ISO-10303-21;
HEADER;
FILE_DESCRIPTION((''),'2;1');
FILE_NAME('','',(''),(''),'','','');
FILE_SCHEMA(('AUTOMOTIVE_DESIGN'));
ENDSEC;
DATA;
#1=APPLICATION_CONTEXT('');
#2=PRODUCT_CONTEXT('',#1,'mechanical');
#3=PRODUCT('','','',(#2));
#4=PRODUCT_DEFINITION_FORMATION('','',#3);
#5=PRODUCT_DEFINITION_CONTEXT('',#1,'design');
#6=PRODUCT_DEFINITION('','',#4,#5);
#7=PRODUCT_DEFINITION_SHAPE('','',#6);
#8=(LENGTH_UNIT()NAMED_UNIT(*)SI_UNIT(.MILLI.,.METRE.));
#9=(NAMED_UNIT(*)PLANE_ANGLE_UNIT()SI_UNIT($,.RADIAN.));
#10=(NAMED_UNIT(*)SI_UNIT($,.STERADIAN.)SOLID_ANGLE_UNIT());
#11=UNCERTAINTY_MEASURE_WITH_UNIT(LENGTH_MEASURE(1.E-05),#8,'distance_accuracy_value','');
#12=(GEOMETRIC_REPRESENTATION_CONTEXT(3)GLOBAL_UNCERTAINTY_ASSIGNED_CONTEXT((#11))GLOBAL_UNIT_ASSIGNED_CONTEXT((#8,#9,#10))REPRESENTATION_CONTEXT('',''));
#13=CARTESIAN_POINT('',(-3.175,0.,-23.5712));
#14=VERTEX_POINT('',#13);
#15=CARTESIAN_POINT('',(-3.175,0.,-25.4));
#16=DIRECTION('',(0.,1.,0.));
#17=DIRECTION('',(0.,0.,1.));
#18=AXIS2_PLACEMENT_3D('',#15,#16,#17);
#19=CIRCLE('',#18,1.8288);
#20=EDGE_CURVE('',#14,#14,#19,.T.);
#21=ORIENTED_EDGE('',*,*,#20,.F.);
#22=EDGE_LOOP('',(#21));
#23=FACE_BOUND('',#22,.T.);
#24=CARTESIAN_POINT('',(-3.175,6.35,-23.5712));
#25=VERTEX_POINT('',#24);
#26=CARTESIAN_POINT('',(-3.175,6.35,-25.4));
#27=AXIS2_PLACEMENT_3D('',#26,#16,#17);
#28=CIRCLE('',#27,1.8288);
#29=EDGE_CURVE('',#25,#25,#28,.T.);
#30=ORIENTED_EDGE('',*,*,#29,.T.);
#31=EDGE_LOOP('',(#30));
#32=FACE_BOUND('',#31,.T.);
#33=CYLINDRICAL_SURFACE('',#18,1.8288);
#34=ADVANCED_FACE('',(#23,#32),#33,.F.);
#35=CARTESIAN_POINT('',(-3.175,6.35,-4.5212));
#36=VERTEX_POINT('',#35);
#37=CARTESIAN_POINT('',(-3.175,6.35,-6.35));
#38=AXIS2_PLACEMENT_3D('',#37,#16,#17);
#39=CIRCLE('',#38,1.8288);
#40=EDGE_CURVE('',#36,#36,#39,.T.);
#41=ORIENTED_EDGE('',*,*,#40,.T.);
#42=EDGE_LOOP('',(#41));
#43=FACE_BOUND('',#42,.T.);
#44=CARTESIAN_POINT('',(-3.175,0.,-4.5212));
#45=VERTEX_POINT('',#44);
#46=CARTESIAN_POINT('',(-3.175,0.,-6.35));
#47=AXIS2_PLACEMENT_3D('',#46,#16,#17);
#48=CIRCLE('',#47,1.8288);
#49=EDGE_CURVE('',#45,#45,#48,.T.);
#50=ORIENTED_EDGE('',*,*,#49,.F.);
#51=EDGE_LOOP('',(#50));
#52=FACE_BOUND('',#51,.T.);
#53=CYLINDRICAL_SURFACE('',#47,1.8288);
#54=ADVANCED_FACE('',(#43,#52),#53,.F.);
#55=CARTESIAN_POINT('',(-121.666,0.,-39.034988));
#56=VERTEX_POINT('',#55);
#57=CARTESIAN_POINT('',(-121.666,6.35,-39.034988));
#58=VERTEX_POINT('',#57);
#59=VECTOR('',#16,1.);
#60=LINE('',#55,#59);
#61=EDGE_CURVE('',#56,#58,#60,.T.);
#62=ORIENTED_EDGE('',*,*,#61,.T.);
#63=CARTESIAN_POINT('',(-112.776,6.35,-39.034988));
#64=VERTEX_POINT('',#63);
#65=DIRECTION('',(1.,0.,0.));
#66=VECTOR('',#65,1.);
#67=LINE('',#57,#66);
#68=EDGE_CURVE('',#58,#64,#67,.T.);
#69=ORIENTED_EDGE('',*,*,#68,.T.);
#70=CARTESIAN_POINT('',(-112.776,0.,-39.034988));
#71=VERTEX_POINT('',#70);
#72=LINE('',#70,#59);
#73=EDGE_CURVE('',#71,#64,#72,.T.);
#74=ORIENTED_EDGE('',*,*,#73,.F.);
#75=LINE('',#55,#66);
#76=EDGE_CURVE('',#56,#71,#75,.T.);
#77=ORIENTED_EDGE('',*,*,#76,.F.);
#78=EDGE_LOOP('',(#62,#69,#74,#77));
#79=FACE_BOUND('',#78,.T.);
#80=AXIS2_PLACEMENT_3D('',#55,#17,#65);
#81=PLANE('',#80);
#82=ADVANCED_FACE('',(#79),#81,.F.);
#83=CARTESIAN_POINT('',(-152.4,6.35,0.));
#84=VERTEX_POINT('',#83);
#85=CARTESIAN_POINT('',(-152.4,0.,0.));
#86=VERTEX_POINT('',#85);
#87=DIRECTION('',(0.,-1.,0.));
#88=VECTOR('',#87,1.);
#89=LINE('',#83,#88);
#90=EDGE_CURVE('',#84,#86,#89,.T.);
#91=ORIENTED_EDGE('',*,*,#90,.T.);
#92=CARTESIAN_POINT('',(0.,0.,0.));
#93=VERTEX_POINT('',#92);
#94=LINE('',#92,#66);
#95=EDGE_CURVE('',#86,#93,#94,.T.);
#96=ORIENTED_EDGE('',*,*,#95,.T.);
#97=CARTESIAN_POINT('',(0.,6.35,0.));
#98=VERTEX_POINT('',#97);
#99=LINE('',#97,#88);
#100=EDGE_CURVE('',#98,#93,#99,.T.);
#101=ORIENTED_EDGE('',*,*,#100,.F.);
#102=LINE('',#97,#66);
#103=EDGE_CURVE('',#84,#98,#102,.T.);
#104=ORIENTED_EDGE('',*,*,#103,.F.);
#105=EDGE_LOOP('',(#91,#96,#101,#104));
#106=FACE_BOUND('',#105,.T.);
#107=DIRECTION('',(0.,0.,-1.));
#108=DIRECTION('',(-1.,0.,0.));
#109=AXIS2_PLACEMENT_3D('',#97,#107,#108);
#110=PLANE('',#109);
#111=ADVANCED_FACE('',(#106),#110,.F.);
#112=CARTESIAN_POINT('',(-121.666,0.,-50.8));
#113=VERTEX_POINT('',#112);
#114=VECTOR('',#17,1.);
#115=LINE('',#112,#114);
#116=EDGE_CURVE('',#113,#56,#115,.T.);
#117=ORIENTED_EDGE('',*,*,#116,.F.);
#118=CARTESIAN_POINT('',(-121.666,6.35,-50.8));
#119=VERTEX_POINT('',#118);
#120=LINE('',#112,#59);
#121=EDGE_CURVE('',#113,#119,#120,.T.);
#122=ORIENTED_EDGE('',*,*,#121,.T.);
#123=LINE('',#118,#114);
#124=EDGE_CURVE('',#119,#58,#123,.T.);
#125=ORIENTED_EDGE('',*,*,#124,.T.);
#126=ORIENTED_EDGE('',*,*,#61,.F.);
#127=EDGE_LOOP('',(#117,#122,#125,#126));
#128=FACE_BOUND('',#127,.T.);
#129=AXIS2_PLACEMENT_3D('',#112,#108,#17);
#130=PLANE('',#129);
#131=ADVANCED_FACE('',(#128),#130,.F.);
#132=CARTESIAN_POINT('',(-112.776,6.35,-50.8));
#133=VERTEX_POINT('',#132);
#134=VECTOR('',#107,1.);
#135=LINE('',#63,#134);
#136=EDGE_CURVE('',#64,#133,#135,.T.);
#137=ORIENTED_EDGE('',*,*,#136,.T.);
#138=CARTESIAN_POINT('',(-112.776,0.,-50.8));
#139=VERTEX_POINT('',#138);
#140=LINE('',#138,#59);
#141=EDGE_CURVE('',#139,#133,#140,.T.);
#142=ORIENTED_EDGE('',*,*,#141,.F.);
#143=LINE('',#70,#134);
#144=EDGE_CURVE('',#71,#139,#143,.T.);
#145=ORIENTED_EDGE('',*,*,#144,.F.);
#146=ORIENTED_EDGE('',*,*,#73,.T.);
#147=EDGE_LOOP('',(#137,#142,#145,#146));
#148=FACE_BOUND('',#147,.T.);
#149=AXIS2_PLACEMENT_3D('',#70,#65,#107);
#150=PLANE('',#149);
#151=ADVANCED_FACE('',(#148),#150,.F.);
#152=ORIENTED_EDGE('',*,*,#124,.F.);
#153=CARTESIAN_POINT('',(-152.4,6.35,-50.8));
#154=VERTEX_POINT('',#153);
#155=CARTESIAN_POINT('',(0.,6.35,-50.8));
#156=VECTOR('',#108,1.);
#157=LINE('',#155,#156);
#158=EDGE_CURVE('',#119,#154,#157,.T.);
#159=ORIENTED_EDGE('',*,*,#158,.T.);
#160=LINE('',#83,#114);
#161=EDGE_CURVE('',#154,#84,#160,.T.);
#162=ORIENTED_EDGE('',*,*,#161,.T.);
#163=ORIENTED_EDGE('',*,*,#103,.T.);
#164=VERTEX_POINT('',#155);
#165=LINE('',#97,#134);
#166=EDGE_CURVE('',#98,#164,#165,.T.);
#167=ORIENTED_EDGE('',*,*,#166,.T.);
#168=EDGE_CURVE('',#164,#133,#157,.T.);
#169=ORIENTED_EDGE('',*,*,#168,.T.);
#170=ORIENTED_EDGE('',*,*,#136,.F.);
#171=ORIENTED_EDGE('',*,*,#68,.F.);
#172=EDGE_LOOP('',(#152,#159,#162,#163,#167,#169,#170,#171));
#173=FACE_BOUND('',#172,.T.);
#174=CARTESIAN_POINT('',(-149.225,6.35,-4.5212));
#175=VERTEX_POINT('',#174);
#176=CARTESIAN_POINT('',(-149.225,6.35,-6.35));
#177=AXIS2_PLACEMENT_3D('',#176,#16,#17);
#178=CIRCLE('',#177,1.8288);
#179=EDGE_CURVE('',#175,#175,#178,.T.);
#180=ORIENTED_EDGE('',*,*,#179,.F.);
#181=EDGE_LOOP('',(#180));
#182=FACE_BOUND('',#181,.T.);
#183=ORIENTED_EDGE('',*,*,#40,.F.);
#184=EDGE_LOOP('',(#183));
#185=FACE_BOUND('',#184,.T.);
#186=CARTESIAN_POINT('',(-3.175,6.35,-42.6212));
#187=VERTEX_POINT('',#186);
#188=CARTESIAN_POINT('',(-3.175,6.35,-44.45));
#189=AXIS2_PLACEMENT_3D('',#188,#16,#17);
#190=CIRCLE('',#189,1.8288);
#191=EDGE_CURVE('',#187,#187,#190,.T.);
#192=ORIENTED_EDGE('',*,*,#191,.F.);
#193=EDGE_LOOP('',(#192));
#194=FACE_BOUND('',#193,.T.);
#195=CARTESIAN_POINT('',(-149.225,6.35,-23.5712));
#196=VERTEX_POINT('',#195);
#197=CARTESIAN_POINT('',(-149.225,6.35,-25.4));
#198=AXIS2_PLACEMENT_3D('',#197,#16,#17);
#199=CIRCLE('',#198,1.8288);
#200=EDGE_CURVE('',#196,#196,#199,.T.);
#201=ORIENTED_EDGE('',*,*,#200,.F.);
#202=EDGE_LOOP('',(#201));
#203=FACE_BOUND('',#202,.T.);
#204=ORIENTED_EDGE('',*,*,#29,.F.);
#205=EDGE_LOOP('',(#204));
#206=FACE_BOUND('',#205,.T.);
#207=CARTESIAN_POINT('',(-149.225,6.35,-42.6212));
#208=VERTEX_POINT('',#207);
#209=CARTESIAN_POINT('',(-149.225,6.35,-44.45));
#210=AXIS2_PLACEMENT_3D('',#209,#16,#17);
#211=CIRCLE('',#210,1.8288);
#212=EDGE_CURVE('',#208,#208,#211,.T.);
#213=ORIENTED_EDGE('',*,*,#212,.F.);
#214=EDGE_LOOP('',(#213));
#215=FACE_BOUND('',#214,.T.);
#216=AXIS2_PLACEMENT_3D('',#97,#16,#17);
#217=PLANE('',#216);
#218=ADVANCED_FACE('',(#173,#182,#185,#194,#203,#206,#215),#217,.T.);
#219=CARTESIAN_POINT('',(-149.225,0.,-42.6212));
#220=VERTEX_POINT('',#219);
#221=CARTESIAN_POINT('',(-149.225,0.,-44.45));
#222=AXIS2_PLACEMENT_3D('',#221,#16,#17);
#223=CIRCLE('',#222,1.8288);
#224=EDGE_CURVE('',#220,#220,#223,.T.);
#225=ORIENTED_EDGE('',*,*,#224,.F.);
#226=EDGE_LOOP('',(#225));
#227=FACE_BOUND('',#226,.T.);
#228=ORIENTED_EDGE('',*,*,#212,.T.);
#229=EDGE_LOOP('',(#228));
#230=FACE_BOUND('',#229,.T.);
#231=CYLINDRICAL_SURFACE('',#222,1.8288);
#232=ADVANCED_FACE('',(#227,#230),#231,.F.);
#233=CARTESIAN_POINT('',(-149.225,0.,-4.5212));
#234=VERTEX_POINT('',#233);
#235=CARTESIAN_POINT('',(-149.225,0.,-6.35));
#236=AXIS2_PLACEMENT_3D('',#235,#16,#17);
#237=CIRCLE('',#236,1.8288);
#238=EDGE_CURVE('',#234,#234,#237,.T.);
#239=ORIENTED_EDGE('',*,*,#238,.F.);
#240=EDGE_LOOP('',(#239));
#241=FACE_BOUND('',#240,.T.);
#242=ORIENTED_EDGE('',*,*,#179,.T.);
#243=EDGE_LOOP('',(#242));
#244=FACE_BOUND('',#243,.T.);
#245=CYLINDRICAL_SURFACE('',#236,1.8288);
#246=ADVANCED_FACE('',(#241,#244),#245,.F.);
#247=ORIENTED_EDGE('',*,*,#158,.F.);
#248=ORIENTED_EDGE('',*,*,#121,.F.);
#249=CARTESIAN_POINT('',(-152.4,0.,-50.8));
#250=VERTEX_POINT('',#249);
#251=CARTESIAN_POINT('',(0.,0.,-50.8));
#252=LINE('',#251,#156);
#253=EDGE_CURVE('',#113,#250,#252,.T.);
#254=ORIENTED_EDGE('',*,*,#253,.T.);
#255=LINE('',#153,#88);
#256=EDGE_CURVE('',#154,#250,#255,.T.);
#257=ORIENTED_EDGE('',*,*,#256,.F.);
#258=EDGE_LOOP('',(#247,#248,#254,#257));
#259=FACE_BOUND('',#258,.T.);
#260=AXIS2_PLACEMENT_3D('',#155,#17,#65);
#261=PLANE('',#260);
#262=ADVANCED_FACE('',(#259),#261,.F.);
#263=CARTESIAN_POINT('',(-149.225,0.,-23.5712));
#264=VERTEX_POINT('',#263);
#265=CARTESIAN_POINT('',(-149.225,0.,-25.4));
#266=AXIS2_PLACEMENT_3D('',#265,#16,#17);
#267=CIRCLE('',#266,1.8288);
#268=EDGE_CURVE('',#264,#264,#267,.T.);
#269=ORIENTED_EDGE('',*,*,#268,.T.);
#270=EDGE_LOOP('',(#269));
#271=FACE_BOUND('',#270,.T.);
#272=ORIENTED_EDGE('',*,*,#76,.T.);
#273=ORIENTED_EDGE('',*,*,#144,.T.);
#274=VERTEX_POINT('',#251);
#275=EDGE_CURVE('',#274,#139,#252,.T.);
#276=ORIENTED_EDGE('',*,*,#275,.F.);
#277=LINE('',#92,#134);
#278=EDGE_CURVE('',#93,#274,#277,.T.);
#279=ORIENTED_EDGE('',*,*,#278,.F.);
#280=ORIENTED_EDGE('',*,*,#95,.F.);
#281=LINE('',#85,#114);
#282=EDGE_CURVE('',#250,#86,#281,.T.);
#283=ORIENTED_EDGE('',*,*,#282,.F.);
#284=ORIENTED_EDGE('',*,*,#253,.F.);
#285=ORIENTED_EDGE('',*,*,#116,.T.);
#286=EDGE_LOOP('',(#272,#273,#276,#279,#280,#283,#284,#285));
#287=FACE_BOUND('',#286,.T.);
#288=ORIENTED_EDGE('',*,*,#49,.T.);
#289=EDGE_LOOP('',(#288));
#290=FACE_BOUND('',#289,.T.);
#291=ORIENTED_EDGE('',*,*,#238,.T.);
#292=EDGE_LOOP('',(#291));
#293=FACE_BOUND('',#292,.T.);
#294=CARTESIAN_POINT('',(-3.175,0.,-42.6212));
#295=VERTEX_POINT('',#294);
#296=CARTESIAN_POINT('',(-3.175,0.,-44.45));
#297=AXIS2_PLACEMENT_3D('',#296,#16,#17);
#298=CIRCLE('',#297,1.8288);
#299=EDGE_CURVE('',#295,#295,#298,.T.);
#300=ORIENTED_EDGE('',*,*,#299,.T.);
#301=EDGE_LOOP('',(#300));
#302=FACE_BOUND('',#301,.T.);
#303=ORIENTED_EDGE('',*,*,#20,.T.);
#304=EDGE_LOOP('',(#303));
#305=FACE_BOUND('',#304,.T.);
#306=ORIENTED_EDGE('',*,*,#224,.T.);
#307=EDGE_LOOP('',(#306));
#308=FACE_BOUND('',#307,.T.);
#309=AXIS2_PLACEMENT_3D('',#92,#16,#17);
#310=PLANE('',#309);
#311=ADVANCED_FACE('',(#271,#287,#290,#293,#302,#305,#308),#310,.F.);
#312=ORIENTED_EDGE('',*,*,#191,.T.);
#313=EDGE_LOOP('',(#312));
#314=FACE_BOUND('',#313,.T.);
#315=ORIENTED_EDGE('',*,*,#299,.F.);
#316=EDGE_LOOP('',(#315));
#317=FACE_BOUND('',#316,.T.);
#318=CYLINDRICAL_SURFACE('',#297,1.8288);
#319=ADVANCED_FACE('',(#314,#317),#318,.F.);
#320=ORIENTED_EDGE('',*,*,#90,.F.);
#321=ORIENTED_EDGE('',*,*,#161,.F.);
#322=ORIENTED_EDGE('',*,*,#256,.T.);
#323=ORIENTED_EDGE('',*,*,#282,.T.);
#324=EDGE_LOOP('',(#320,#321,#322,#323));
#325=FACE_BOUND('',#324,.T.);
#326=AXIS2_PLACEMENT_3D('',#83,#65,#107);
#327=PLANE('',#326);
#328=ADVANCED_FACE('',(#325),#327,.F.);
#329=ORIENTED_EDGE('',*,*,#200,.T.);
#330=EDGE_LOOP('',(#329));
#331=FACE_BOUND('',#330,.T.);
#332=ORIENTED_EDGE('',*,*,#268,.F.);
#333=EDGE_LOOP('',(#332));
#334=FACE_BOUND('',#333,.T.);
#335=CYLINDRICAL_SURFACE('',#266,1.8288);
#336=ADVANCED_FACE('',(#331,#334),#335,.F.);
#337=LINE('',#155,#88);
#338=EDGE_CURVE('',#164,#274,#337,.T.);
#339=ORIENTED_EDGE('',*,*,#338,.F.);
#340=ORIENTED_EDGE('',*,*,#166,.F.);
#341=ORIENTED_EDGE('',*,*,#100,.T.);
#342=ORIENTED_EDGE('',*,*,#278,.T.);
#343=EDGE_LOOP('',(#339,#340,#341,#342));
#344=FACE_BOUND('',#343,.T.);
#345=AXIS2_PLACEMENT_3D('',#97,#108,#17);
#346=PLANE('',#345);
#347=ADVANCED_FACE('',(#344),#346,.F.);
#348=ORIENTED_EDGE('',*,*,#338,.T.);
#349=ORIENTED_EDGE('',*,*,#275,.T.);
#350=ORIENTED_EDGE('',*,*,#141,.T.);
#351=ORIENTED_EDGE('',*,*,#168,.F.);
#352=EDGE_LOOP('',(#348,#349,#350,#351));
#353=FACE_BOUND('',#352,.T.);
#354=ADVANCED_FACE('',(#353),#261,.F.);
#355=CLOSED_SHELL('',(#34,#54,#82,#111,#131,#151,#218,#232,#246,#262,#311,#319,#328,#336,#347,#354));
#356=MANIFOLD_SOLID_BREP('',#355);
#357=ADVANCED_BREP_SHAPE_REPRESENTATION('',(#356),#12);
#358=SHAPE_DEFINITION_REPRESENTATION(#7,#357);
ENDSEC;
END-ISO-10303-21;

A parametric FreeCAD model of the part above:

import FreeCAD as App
import Part
import Sketcher
from FreeCAD import Vector
Q = App.Units.Quantity


def add_polygon(sketch, points):
    """Adds a closed chain of lines whose ends are joined by coincident constraints."""
    first, n = sketch.GeometryCount, len(points)
    for a, b in zip(points, points[1:] + points[:1]):
        sketch.addGeometry(Part.LineSegment(App.Vector(*a, 0), App.Vector(*b, 0)), False)
    for i in range(n):
        sketch.addConstraint(Sketcher.Constraint("Coincident", first + i, 2, first + (i + 1) % n, 1))

doc = App.newDocument("Part")
body = doc.addObject("PartDesign::Body", "Body")

sketch1 = doc.addObject("Sketcher::SketchObject", "Sketch")
body.addObject(sketch1)
sketch1.AttachmentSupport = (doc.XZ_Plane, [""])
sketch1.MapMode = "FlatFace"
add_polygon(sketch1, [(-152, -51), (-152, 0), (0, 0), (0, -51)])
sketch1.addConstraint([
    Sketcher.Constraint("Vertical", 0),
    Sketcher.Constraint("Horizontal", 1),
    Sketcher.Constraint("Vertical", 2),
    Sketcher.Constraint("Horizontal", 3),
    Sketcher.Constraint("Coincident", 1, 2, -1, 1),
    Sketcher.Constraint("DistanceX", 1, 1, 1, 2, Q("6 in")),
    Sketcher.Constraint("DistanceY", 0, 1, 0, 2, Q("2 in")),
])
pad1 = doc.addObject("PartDesign::Pad", "Pad")
body.addObject(pad1)
pad1.Profile = sketch1
pad1.Length = Q("0.25 in")
pad1.Reversed = True

sketch2 = doc.addObject("Sketcher::SketchObject", "Sketch001")
body.addObject(sketch2)
sketch2.AttachmentSupport = (doc.XZ_Plane, [""])
sketch2.MapMode = "FlatFace"
sketch2.AttachmentOffset = App.Placement(Vector(0, 0, -0.25 * 25.4), App.Rotation())
sketch2.addGeometry([
    Part.Circle(Vector(-149.2, -44.5, 0), Vector(0, 0, 1), 1.8),
    Part.Circle(Vector(-149.2, -25.4, 0), Vector(0, 0, 1), 1.8),
    Part.Circle(Vector(-149.2, -6.3, 0), Vector(0, 0, 1), 1.8),
    Part.Circle(Vector(-3.2, -25.4, 0), Vector(0, 0, 1), 1.8),
    Part.Circle(Vector(-3.2, -44.5, 0), Vector(0, 0, 1), 1.8),
    Part.Circle(Vector(-3.2, -6.3, 0), Vector(0, 0, 1), 1.8),
], False)
sketch2.addConstraint([
    Sketcher.Constraint("Equal", 0, 1),
    Sketcher.Constraint("Equal", 1, 2),
    Sketcher.Constraint("Equal", 2, 3),
    Sketcher.Constraint("Equal", 3, 4),
    Sketcher.Constraint("Equal", 4, 5),
    Sketcher.Constraint("Horizontal", 1, 3, 3, 3),
    Sketcher.Constraint("Horizontal", 0, 3, 4, 3),
    Sketcher.Constraint("Horizontal", 2, 3, 5, 3),
    Sketcher.Constraint("Vertical", 0, 3, 1, 3),
    Sketcher.Constraint("Vertical", 1, 3, 2, 3),
    Sketcher.Constraint("Vertical", 3, 3, 4, 3),
    Sketcher.Constraint("Vertical", 4, 3, 5, 3),
    Sketcher.Constraint("Diameter", 0, Q("0.144 in")),
    Sketcher.Constraint("DistanceY", 1, 3, -1, 1, Q("1 in")),
    Sketcher.Constraint("DistanceY", 0, 3, 2, 3, Q("1.5 in")),
    Sketcher.Constraint("DistanceY", 0, 3, -1, 1, Q("1.75 in")),
    Sketcher.Constraint("DistanceX", 1, 3, 3, 3, Q("5.75 in")),
    Sketcher.Constraint("DistanceX", 0, 3, -1, 1, Q("5.875 in")),
])
pocket1 = doc.addObject("PartDesign::Pocket", "Pocket")
body.addObject(pocket1)
pocket1.Profile = sketch2
pocket1.Length = Q("0.25 in")
pocket1.Reversed = True

sketch3 = doc.addObject("Sketcher::SketchObject", "Sketch002")
body.addObject(sketch3)
sketch3.AttachmentSupport = (doc.XZ_Plane, [""])
sketch3.MapMode = "FlatFace"
sketch3.AttachmentOffset = App.Placement(Vector(0, 0, -0.25 * 25.4), App.Rotation())
add_polygon(sketch3, [(-122, -51), (-122, -39), (-113, -39), (-113, -51)])
sketch3.addConstraint([
    Sketcher.Constraint("Vertical", 0),
    Sketcher.Constraint("Horizontal", 1),
    Sketcher.Constraint("Vertical", 2),
    Sketcher.Constraint("Horizontal", 3),
    Sketcher.Constraint("DistanceY", 2, 2, -1, 1, Q("2 in")),
    Sketcher.Constraint("DistanceX", 1, 1, 1, 2, Q("0.35 in")),
    Sketcher.Constraint("DistanceX", 0, 2, -1, 1, Q("4.79 in")),
    Sketcher.Constraint("DistanceY", 0, 1, 0, 2, 11.765012),
])
pocket2 = doc.addObject("PartDesign::Pocket", "Pocket001")
body.addObject(pocket2)
pocket2.Profile = sketch3
pocket2.Type = "ThroughAll"
pocket2.Reversed = True

doc.recompute()
